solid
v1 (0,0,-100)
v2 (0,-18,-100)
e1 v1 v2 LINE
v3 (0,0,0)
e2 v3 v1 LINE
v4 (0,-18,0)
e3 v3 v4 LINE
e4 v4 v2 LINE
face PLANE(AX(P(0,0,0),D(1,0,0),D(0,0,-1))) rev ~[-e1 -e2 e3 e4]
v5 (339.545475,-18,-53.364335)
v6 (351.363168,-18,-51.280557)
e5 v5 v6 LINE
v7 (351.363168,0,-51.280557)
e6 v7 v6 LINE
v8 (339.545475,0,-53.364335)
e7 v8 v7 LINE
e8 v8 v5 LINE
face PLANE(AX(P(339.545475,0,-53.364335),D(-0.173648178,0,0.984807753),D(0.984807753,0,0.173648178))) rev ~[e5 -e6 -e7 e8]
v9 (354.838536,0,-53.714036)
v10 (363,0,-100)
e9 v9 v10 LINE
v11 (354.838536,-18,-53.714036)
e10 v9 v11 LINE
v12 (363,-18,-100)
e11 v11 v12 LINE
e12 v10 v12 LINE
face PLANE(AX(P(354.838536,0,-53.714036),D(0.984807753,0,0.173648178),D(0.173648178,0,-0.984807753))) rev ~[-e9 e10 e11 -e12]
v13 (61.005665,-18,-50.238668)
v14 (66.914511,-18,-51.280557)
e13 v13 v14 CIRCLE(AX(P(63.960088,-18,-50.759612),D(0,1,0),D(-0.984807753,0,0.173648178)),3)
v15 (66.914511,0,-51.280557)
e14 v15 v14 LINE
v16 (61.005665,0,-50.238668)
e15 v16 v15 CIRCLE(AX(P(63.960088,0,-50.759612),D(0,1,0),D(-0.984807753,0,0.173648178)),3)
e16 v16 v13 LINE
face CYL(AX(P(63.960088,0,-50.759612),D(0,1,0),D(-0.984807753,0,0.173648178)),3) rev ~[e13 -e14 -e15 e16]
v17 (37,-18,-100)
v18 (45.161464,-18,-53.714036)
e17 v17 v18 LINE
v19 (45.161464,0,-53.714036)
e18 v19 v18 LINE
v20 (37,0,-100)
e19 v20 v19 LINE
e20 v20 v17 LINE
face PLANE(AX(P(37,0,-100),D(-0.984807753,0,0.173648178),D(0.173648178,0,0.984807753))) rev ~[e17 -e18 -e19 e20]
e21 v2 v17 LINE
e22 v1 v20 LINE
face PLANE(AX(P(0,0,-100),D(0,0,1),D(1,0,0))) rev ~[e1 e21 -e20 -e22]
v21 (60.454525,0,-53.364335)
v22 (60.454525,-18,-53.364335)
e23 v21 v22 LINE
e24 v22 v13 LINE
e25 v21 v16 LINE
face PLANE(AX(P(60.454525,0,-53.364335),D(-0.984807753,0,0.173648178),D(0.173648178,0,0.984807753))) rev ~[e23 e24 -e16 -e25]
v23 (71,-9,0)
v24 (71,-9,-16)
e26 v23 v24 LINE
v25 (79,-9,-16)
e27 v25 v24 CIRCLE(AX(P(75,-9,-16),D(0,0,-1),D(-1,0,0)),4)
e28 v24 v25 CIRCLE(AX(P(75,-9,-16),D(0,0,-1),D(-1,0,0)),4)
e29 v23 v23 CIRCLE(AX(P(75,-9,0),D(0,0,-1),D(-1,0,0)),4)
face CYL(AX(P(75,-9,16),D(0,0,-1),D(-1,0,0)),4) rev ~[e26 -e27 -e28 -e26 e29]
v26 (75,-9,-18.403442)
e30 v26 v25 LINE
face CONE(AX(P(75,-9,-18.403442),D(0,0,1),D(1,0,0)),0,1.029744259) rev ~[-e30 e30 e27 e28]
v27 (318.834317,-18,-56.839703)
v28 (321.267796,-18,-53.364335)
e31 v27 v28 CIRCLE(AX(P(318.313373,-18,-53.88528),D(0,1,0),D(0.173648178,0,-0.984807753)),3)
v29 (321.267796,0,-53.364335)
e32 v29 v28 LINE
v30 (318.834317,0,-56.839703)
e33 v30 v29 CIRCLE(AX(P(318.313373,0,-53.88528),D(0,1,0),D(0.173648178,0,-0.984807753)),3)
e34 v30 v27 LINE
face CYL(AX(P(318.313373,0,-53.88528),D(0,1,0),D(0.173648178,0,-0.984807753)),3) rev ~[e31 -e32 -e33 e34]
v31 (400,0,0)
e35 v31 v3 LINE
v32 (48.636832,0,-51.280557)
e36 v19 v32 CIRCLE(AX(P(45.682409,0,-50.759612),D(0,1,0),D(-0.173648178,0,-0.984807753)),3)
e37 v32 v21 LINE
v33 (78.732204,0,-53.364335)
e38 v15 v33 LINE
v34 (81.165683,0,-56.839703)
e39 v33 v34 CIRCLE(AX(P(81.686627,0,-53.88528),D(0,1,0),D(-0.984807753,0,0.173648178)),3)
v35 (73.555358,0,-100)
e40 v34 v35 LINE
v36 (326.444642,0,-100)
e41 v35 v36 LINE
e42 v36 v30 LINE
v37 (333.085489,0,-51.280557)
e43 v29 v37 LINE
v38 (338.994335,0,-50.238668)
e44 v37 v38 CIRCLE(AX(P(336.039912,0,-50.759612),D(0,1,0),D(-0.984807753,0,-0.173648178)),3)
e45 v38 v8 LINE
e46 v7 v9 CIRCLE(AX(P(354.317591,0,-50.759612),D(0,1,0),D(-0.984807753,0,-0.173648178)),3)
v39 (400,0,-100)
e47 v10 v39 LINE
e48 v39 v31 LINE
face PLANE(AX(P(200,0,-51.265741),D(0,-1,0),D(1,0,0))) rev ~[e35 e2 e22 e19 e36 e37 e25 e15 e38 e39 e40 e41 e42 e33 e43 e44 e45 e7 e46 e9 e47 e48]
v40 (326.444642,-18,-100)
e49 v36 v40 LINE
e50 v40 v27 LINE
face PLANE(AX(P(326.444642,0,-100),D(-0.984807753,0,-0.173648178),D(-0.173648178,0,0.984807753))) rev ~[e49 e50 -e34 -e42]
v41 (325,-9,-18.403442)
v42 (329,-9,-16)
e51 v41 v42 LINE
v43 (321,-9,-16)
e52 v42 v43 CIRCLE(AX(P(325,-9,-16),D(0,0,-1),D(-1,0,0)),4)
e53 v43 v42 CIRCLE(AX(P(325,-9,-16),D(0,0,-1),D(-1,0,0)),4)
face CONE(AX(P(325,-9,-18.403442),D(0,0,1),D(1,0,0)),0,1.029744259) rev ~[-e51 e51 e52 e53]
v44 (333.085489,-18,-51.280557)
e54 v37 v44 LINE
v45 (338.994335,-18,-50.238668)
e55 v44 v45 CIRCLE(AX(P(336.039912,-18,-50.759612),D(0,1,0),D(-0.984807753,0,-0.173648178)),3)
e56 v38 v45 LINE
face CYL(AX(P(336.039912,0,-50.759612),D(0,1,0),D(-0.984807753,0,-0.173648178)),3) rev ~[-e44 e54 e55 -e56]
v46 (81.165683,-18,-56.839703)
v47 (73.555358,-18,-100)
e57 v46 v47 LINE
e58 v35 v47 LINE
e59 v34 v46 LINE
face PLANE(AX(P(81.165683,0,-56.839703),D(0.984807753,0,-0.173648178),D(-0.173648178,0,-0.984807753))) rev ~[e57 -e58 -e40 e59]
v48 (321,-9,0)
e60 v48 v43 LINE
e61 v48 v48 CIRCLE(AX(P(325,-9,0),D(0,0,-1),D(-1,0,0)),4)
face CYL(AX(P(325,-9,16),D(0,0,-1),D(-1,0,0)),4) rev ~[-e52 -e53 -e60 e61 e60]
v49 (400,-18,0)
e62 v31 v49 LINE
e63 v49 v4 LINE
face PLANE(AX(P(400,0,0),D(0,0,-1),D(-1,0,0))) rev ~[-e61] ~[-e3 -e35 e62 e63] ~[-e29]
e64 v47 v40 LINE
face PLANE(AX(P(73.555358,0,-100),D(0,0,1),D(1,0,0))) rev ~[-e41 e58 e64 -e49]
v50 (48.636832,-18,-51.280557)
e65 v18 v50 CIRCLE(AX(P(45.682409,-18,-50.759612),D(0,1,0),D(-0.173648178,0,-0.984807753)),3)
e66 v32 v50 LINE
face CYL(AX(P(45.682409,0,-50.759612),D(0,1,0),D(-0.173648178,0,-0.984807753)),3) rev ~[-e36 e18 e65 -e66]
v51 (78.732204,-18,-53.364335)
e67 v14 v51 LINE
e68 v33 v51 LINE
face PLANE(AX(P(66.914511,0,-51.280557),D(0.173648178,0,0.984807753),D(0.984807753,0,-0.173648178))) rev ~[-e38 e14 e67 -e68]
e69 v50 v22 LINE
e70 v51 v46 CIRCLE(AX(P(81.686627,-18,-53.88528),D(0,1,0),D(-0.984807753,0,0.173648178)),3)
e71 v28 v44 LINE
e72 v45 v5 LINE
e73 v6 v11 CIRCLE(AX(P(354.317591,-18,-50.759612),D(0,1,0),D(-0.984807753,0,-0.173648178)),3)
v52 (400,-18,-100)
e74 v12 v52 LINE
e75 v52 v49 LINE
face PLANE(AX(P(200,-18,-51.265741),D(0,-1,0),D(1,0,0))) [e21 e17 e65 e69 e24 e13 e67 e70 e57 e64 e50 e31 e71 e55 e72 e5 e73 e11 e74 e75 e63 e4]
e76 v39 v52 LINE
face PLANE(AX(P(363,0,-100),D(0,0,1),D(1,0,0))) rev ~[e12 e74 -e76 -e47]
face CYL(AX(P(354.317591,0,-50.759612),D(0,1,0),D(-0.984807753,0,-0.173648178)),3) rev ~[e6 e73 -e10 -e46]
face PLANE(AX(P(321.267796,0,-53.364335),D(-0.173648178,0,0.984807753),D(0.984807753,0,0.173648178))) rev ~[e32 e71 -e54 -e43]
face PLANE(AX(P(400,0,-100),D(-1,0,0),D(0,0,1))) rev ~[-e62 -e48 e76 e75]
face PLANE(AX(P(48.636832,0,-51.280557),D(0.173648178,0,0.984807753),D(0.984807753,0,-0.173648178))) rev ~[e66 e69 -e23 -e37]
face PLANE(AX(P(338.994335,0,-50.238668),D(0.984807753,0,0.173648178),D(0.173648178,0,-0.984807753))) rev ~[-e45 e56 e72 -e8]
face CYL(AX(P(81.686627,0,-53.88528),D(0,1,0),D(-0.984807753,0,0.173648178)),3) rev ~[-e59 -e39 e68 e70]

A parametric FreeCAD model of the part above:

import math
import FreeCAD as App
import Part
import Sketcher
from FreeCAD import Vector
Q = App.Units.Quantity

doc = App.newDocument("Part")
params = doc.addObject("Spreadsheet::Sheet", "Params")
for row, (alias, value) in enumerate([
    ("sketch1_radius", "3 mm"),
    ("sketch1_width", "400 mm"),
    ("sketch1_width2", "37 mm"),
    ("sketch1_height", "100 mm"),
    ("sketch1_length", "47 mm"),
    ("pad1_length", "18 mm"),
    ("sketch2_diameter", "8 mm"),
    ("hole_diameter", "8 mm"),
    ("hole_depth", "16 mm"),
], start=1):
    params.set(f"A{row}", alias)
    params.set(f"B{row}", "=" + value)
    params.setAlias(f"B{row}", alias)

body = doc.addObject("PartDesign::Body", "Body")

# Sketch on XZ plane
sketch1 = doc.addObject("Sketcher::SketchObject", "Sketch")
body.addObject(sketch1)
sketch1.AttachmentSupport = (doc.XZ_Plane, [""])
sketch1.MapMode = "FlatFace"
sketch1.addGeometry([
    Part.LineSegment(Vector(400, 0, 0), Vector(0, 0, 0)),  # 0
    Part.LineSegment(Vector(0, 0, 0), Vector(0, -100, 0)),  # 1
    Part.LineSegment(Vector(0, -100, 0), Vector(37, -100, 0)),  # 2
    Part.LineSegment(Vector(37, -100, 0), Vector(45.2, -53.7, 0)),  # 3
    Part.ArcOfCircle(Part.Circle(Vector(45.7, -50.8, 0), Vector(0, 0, 1), 3), math.radians(-10), math.radians(260)),  # 4
    Part.LineSegment(Vector(48.6, -51.3, 0), Vector(60.5, -53.4, 0)),  # 5
    Part.LineSegment(Vector(60.5, -53.4, 0), Vector(61, -50.2, 0)),  # 6
    Part.ArcOfCircle(Part.Circle(Vector(64, -50.8, 0), Vector(0, 0, 1), 3), math.radians(-10), math.radians(170)),  # 7
    Part.LineSegment(Vector(66.9, -51.3, 0), Vector(78.7, -53.4, 0)),  # 8
    Part.ArcOfCircle(Part.Circle(Vector(81.7, -53.9, 0), Vector(0, 0, 1), 3), math.radians(-100), math.radians(170)),  # 9
    Part.LineSegment(Vector(81.2, -56.8, 0), Vector(73.6, -100, 0)),  # 10
    Part.LineSegment(Vector(73.6, -100, 0), Vector(326.4, -100, 0)),  # 11
    Part.LineSegment(Vector(326.4, -100, 0), Vector(318.8, -56.8, 0)),  # 12
    Part.ArcOfCircle(Part.Circle(Vector(318.3, -53.9, 0), Vector(0, 0, 1), 3), math.radians(10), math.radians(280)),  # 13
    Part.LineSegment(Vector(321.3, -53.4, 0), Vector(333.1, -51.3, 0)),  # 14
    Part.ArcOfCircle(Part.Circle(Vector(336, -50.8, 0), Vector(0, 0, 1), 3), math.radians(10), math.radians(190)),  # 15
    Part.LineSegment(Vector(339, -50.2, 0), Vector(339.5, -53.4, 0)),  # 16
    Part.LineSegment(Vector(339.5, -53.4, 0), Vector(351.4, -51.3, 0)),  # 17
    Part.ArcOfCircle(Part.Circle(Vector(354.3, -50.8, 0), Vector(0, 0, 1), 3), math.radians(-80), math.radians(190)),  # 18
    Part.LineSegment(Vector(354.8, -53.7, 0), Vector(363, -100, 0)),  # 19
    Part.LineSegment(Vector(363, -100, 0), Vector(400, -100, 0)),  # 20
    Part.LineSegment(Vector(400, -100, 0), Vector(400, 0, 0)),  # 21
], False)
sketch1.addConstraint([
    Sketcher.Constraint("Coincident", 0, 2, 1, 1),
    Sketcher.Constraint("Coincident", 1, 2, 2, 1),
    Sketcher.Constraint("Coincident", 2, 2, 3, 1),
    Sketcher.Constraint("Coincident", 3, 2, 4, 2),
    Sketcher.Constraint("Coincident", 4, 1, 5, 1),
    Sketcher.Constraint("Coincident", 5, 2, 6, 1),
    Sketcher.Constraint("Tangent", 6, 2, 7, 2),
    Sketcher.Constraint("Coincident", 7, 1, 8, 1),
    Sketcher.Constraint("Coincident", 8, 2, 9, 2),
    Sketcher.Constraint("Coincident", 9, 1, 10, 1),
    Sketcher.Constraint("Coincident", 10, 2, 11, 1),
    Sketcher.Constraint("Coincident", 11, 2, 12, 1),
    Sketcher.Constraint("Coincident", 12, 2, 13, 2),
    Sketcher.Constraint("Coincident", 13, 1, 14, 1),
    Sketcher.Constraint("Coincident", 14, 2, 15, 2),
    Sketcher.Constraint("Tangent", 15, 1, 16, 1),
    Sketcher.Constraint("Coincident", 16, 2, 17, 1),
    Sketcher.Constraint("Coincident", 17, 2, 18, 2),
    Sketcher.Constraint("Coincident", 18, 1, 19, 1),
    Sketcher.Constraint("Coincident", 19, 2, 20, 1),
    Sketcher.Constraint("Coincident", 20, 2, 21, 1),
    Sketcher.Constraint("Coincident", 21, 2, 0, 1),
    Sketcher.Constraint("Horizontal", 0),
    Sketcher.Constraint("Vertical", 1),
    Sketcher.Constraint("Horizontal", 2),
    Sketcher.Constraint("Horizontal", 11),
    Sketcher.Constraint("Horizontal", 20),
    Sketcher.Constraint("Vertical", 21),
    Sketcher.Constraint("Coincident", 0, 2, -1, 1),
    Sketcher.Constraint("Equal", 4, 7),
    Sketcher.Constraint("Equal", 7, 9),
    Sketcher.Constraint("Equal", 9, 13),
    Sketcher.Constraint("Equal", 13, 15),
    Sketcher.Constraint("Equal", 15, 18),
    Sketcher.Constraint("Perpendicular", 3, 5),
    Sketcher.Constraint("Perpendicular", 5, 6),
    Sketcher.Constraint("Perpendicular", 6, 8),
    Sketcher.Constraint("Perpendicular", 8, 10),
    Sketcher.Constraint("Perpendicular", 12, 14),
    Sketcher.Constraint("Perpendicular", 14, 16),
    Sketcher.Constraint("Perpendicular", 16, 17),
    Sketcher.Constraint("Perpendicular", 17, 19),
    Sketcher.Constraint("Horizontal", 4, 3, 7, 3),
    Sketcher.Constraint("Horizontal", 9, 3, 13, 3),
    Sketcher.Constraint("Horizontal", 7, 3, 15, 3),
    Sketcher.Constraint("Horizontal", 15, 3, 18, 3),
    Sketcher.Constraint("Horizontal", 4, 1, 7, 1),
    Sketcher.Constraint("Horizontal", 5, 2, 8, 2),
    Sketcher.Constraint("Horizontal", 2, 2, 10, 2),
    Sketcher.Constraint("Horizontal", 9, 1, 12, 2),
    Sketcher.Constraint("Horizontal", 8, 2, 13, 1),
    Sketcher.Constraint("Horizontal", 7, 1, 14, 2),
    Sketcher.Constraint("Horizontal", 6, 2, 15, 1),
    Sketcher.Constraint("Horizontal", 13, 1, 16, 2),
    Sketcher.Constraint("Horizontal", 14, 2, 17, 2),
    Sketcher.Constraint("Horizontal", 3, 2, 18, 1),
    Sketcher.Constraint("Horizontal", 11, 2, 19, 2),
    Sketcher.Constraint("Equal", 2, 20),
    Sketcher.Constraint("Radius", 4, Q("3 mm")),
    Sketcher.Constraint("DistanceX", 0, 2, 0, 1, Q("400 mm")),
    Sketcher.Constraint("DistanceX", 2, 1, 2, 2, Q("37 mm")),
    Sketcher.Constraint("DistanceY", 1, 2, 1, 1, Q("100 mm")),
    Sketcher.Constraint("Angle", 3, Q("80 deg")),
    Sketcher.Constraint("Distance", 3, Q("47 mm")),
    Sketcher.Constraint("Distance", 5, Q("12 mm")),
    Sketcher.Constraint("DistanceY", 3, 2, 5, 2, Q("0.349701 mm")),
    Sketcher.Constraint("DistanceX", 3, 2, 6, 2, Q("15.8442 mm")),
    Sketcher.Constraint("DistanceX", 11, 1, 11, 2, Q("252.889284 mm")),
    Sketcher.Constraint("DistanceY", 9, 3, -1, 1, Q("53.88528 mm")),
])
sketch1.setExpression("Constraints[58]", "Params.sketch1_radius")
sketch1.setExpression("Constraints[59]", "Params.sketch1_width")
sketch1.setExpression("Constraints[60]", "Params.sketch1_width2")
sketch1.setExpression("Constraints[61]", "Params.sketch1_height")
sketch1.setExpression("Constraints[63]", "Params.sketch1_length")
pad1 = doc.addObject("PartDesign::Pad", "Pad")
body.addObject(pad1)
pad1.Profile = sketch1
pad1.setExpression("Length", "Params.pad1_length")

# Sketch on XY plane
sketch2 = doc.addObject("Sketcher::SketchObject", "Sketch001")
body.addObject(sketch2)
sketch2.AttachmentSupport = (doc.XY_Plane, [""])
sketch2.MapMode = "FlatFace"
sketch2.addGeometry([
    Part.Circle(Vector(75, -9, 0), Vector(0, 0, 1), 4),
    Part.Circle(Vector(325, -9, 0), Vector(0, 0, 1), 4),
], False)
sketch2.addConstraint([
    Sketcher.Constraint("Equal", 0, 1),
    Sketcher.Constraint("Horizontal", 0, 3, 1, 3),
    Sketcher.Constraint("Diameter", 0, Q("8 mm")),
    Sketcher.Constraint("DistanceX", -1, 1, 0, 3, Q("75 mm")),
    Sketcher.Constraint("DistanceY", 0, 3, -1, 1, Q("9 mm")),
    Sketcher.Constraint("DistanceX", -1, 1, 1, 3, Q("325 mm")),
])
sketch2.setExpression("Constraints[2]", "Params.sketch2_diameter")
doc.recompute()
hole = doc.addObject("PartDesign::Hole", "Hole")
body.addObject(hole)
hole.Profile = sketch2
hole.ThreadType = "None"
hole.setExpression("Diameter", "Params.hole_diameter")
hole.DepthType = "Dimension"
hole.setExpression("Depth", "Params.hole_depth")
hole.DrillPoint = "Angled"
hole.DrillPointAngle = 118

doc.recompute()
